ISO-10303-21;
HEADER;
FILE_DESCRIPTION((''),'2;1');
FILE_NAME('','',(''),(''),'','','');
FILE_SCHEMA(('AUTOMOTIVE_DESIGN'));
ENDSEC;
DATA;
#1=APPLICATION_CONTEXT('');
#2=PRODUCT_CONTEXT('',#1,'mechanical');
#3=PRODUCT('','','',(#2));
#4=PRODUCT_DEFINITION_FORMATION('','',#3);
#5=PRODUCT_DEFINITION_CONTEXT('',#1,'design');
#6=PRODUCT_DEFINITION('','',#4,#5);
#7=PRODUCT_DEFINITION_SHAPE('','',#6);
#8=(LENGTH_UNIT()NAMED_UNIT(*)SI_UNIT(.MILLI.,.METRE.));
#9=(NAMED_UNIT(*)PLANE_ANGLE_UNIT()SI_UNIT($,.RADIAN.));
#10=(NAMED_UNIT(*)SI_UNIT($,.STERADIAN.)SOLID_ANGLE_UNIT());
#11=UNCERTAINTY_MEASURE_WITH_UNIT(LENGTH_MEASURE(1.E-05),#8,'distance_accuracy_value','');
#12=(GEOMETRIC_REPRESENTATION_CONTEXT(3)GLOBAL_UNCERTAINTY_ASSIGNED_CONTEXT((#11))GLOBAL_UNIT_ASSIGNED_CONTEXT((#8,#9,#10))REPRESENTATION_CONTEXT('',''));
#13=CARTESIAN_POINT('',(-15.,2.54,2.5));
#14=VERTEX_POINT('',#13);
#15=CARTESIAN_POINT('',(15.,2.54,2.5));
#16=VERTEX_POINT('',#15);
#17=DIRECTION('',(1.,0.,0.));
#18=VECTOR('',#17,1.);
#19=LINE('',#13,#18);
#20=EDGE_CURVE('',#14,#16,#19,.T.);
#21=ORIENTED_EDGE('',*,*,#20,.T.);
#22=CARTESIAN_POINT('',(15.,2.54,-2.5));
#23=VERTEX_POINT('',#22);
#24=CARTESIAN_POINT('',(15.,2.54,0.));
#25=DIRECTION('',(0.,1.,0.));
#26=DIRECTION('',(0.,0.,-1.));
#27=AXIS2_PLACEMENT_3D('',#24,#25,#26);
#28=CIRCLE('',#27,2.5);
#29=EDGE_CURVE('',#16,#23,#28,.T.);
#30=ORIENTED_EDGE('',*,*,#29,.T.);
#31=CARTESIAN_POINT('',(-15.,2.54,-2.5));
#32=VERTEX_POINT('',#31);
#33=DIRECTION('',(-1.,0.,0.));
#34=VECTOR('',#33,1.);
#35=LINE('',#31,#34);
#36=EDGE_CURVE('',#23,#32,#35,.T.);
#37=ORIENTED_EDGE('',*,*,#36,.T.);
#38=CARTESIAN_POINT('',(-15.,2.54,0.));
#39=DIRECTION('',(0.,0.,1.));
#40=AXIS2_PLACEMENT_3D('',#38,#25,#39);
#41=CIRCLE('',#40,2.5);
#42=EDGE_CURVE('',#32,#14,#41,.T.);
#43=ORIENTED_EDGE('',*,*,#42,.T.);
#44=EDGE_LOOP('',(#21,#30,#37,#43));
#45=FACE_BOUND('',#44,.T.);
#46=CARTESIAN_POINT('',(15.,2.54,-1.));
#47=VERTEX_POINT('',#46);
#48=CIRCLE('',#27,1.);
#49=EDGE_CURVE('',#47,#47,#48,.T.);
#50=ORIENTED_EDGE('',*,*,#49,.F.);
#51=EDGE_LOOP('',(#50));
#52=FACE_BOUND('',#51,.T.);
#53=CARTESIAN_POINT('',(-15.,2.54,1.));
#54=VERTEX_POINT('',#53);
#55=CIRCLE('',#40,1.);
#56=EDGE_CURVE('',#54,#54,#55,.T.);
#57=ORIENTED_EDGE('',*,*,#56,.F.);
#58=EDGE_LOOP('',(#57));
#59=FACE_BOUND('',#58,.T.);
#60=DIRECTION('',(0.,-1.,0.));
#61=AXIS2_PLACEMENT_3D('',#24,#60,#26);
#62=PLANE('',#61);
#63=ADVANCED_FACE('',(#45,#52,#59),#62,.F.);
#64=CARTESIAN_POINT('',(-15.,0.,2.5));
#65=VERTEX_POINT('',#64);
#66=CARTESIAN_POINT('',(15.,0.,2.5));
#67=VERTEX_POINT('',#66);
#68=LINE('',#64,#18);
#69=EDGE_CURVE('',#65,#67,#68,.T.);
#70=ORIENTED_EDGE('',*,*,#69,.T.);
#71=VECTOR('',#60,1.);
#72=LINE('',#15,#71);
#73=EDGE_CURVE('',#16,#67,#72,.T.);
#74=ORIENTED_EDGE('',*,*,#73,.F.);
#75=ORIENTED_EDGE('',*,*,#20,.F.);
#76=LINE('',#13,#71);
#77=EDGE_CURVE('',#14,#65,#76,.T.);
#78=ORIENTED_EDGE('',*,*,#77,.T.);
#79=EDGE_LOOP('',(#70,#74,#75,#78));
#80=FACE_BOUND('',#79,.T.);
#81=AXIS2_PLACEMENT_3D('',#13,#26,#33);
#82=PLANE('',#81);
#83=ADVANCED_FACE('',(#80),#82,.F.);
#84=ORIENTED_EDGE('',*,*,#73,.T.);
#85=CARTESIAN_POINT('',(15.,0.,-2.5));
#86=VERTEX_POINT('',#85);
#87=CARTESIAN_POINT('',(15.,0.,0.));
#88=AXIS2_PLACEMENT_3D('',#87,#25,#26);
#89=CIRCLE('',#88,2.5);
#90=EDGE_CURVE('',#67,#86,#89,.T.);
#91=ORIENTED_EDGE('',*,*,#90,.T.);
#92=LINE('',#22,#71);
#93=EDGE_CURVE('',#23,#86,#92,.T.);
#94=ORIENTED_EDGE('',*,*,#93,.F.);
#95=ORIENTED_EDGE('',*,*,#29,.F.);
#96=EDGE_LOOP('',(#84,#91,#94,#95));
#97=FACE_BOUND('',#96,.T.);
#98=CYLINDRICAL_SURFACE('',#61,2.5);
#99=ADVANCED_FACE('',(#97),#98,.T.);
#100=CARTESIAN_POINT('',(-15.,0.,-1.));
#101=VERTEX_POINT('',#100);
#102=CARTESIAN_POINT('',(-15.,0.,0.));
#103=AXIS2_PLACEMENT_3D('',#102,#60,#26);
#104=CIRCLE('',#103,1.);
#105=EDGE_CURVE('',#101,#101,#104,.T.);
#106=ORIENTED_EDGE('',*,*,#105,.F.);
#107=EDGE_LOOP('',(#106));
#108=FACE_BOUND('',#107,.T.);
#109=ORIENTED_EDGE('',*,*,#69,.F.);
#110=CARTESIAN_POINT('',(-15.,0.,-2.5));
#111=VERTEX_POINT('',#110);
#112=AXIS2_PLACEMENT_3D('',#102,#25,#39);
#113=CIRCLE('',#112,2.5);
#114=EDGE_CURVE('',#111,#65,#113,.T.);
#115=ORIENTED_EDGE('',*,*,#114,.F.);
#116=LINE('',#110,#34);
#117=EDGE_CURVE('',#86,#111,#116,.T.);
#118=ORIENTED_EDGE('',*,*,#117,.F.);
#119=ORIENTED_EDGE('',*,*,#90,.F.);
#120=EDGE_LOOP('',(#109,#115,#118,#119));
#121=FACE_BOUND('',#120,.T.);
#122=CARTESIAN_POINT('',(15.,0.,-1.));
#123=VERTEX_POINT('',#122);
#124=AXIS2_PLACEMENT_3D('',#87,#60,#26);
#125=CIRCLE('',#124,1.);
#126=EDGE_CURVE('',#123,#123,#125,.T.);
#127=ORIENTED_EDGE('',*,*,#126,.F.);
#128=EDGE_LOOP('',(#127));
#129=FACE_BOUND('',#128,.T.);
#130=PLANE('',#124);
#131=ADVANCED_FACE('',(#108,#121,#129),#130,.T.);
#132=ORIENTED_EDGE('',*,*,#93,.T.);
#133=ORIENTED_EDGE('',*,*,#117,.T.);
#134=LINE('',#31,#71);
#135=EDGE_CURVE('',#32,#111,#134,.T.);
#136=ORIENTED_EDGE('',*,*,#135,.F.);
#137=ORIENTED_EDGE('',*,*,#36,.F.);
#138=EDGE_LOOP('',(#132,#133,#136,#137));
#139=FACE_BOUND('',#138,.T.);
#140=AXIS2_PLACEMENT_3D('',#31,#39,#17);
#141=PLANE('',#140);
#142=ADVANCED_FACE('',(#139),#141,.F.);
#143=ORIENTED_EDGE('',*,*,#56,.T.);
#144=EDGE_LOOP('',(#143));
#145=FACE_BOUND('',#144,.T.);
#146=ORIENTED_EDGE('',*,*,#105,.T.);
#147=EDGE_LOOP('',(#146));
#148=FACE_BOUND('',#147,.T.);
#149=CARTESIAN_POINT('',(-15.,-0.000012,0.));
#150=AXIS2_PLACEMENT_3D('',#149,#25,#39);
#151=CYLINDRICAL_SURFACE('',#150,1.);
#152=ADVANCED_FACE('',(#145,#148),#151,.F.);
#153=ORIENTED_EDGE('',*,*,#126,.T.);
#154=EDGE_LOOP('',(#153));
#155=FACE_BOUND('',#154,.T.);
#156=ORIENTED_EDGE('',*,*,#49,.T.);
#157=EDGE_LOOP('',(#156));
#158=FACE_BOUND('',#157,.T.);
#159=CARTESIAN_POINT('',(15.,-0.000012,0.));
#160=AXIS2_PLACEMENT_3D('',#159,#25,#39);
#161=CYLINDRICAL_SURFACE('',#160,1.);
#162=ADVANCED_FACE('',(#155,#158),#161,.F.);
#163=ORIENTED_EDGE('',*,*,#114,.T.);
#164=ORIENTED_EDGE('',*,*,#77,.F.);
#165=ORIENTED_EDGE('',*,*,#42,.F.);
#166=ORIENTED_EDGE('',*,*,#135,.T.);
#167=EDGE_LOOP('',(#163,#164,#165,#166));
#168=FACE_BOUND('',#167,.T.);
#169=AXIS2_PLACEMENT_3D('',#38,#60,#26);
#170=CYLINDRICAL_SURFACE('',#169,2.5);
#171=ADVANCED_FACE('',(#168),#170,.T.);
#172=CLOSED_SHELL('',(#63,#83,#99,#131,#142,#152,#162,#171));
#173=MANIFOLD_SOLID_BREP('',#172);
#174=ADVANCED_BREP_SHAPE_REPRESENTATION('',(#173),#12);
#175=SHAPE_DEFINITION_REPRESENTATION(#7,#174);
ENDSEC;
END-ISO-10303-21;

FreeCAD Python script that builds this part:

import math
import FreeCAD as App
import Part
import Sketcher

doc = App.newDocument("Part")
params = doc.addObject("Spreadsheet::Sheet", "Params")
for row, (alias, value) in enumerate([
    ("sketch1_radius", "2.5 mm"),
    ("sketch1_width", "30 mm"),
    ("pad1_length", "2.54 mm"),
    ("sketch2_diameter", "2 mm"),
], start=1):
    params.set(f"A{row}", alias)
    params.set(f"B{row}", "=" + value)
    params.setAlias(f"B{row}", alias)

body = doc.addObject("PartDesign::Body", "Body")

sketch1 = doc.addObject("Sketcher::SketchObject", "Sketch")
body.addObject(sketch1)
sketch1.AttachmentSupport = (doc.XZ_Plane, [""])
sketch1.MapMode = "FlatFace"
sketch1.addGeometry(Part.LineSegment(App.Vector(15, -2.5, 0), App.Vector(-15, -2.5, 0)), False)
sketch1.addGeometry(Part.ArcOfCircle(Part.Circle(App.Vector(-15, 0, 0), App.Vector(0, 0, 1), 2.5), math.radians(90), math.radians(270)), False)
sketch1.addGeometry(Part.LineSegment(App.Vector(-15, 2.5, 0), App.Vector(15, 2.5, 0)), False)
sketch1.addGeometry(Part.ArcOfCircle(Part.Circle(App.Vector(15, 0, 0), App.Vector(0, 0, 1), 2.5), math.radians(-90), math.radians(90)), False)
sketch1.addConstraint(Sketcher.Constraint("Tangent", 0, 2, 1, 2))
sketch1.addConstraint(Sketcher.Constraint("Tangent", 1, 1, 2, 1))
sketch1.addConstraint(Sketcher.Constraint("Tangent", 2, 2, 3, 2))
sketch1.addConstraint(Sketcher.Constraint("Tangent", 3, 1, 0, 1))
sketch1.addConstraint(Sketcher.Constraint("Horizontal", 0))
sketch1.addConstraint(Sketcher.Constraint("Horizontal", 2))
sketch1.addConstraint(Sketcher.Constraint("Symmetric", 1, 3, 3, 3, -1, 1))
sketch1.addConstraint(Sketcher.Constraint("Radius", 1, 2.5))
sketch1.addConstraint(Sketcher.Constraint("DistanceX", 0, 2, 0, 1, 30.0))
sketch1.setExpression("Constraints[7]", "Params.sketch1_radius")
sketch1.setExpression("Constraints[8]", "Params.sketch1_width")
pad1 = doc.addObject("PartDesign::Pad", "Pad")
body.addObject(pad1)
pad1.Profile = sketch1
pad1.setExpression("Length", "Params.pad1_length")
pad1.Reversed = True

sketch2 = doc.addObject("Sketcher::SketchObject", "Sketch001")
body.addObject(sketch2)
sketch2.AttachmentSupport = (doc.XZ_Plane, [""])
sketch2.MapMode = "FlatFace"
sketch2.addGeometry(Part.Circle(App.Vector(-15, 0, 0), App.Vector(0, 0, 1), 1), False)
sketch2.addGeometry(Part.Circle(App.Vector(15, 0, 0), App.Vector(0, 0, 1), 1), False)
sketch2.addConstraint(Sketcher.Constraint("Equal", 0, 1))
sketch2.addConstraint(Sketcher.Constraint("Symmetric", 0, 3, 1, 3, -1, 1))
sketch2.addConstraint(Sketcher.Constraint("PointOnObject", 0, 3, -1))
sketch2.addConstraint(Sketcher.Constraint("Diameter", 0, 2.0))
sketch2.addConstraint(Sketcher.Constraint("DistanceX", 0, 3, -1, 1, 15.0))
sketch2.setExpression("Constraints[3]", "Params.sketch2_diameter")
pocket1 = doc.addObject("PartDesign::Pocket", "Pocket")
body.addObject(pocket1)
pocket1.Profile = sketch2
pocket1.Type = "ThroughAll"
pocket1.Midplane = True

doc.recompute()
